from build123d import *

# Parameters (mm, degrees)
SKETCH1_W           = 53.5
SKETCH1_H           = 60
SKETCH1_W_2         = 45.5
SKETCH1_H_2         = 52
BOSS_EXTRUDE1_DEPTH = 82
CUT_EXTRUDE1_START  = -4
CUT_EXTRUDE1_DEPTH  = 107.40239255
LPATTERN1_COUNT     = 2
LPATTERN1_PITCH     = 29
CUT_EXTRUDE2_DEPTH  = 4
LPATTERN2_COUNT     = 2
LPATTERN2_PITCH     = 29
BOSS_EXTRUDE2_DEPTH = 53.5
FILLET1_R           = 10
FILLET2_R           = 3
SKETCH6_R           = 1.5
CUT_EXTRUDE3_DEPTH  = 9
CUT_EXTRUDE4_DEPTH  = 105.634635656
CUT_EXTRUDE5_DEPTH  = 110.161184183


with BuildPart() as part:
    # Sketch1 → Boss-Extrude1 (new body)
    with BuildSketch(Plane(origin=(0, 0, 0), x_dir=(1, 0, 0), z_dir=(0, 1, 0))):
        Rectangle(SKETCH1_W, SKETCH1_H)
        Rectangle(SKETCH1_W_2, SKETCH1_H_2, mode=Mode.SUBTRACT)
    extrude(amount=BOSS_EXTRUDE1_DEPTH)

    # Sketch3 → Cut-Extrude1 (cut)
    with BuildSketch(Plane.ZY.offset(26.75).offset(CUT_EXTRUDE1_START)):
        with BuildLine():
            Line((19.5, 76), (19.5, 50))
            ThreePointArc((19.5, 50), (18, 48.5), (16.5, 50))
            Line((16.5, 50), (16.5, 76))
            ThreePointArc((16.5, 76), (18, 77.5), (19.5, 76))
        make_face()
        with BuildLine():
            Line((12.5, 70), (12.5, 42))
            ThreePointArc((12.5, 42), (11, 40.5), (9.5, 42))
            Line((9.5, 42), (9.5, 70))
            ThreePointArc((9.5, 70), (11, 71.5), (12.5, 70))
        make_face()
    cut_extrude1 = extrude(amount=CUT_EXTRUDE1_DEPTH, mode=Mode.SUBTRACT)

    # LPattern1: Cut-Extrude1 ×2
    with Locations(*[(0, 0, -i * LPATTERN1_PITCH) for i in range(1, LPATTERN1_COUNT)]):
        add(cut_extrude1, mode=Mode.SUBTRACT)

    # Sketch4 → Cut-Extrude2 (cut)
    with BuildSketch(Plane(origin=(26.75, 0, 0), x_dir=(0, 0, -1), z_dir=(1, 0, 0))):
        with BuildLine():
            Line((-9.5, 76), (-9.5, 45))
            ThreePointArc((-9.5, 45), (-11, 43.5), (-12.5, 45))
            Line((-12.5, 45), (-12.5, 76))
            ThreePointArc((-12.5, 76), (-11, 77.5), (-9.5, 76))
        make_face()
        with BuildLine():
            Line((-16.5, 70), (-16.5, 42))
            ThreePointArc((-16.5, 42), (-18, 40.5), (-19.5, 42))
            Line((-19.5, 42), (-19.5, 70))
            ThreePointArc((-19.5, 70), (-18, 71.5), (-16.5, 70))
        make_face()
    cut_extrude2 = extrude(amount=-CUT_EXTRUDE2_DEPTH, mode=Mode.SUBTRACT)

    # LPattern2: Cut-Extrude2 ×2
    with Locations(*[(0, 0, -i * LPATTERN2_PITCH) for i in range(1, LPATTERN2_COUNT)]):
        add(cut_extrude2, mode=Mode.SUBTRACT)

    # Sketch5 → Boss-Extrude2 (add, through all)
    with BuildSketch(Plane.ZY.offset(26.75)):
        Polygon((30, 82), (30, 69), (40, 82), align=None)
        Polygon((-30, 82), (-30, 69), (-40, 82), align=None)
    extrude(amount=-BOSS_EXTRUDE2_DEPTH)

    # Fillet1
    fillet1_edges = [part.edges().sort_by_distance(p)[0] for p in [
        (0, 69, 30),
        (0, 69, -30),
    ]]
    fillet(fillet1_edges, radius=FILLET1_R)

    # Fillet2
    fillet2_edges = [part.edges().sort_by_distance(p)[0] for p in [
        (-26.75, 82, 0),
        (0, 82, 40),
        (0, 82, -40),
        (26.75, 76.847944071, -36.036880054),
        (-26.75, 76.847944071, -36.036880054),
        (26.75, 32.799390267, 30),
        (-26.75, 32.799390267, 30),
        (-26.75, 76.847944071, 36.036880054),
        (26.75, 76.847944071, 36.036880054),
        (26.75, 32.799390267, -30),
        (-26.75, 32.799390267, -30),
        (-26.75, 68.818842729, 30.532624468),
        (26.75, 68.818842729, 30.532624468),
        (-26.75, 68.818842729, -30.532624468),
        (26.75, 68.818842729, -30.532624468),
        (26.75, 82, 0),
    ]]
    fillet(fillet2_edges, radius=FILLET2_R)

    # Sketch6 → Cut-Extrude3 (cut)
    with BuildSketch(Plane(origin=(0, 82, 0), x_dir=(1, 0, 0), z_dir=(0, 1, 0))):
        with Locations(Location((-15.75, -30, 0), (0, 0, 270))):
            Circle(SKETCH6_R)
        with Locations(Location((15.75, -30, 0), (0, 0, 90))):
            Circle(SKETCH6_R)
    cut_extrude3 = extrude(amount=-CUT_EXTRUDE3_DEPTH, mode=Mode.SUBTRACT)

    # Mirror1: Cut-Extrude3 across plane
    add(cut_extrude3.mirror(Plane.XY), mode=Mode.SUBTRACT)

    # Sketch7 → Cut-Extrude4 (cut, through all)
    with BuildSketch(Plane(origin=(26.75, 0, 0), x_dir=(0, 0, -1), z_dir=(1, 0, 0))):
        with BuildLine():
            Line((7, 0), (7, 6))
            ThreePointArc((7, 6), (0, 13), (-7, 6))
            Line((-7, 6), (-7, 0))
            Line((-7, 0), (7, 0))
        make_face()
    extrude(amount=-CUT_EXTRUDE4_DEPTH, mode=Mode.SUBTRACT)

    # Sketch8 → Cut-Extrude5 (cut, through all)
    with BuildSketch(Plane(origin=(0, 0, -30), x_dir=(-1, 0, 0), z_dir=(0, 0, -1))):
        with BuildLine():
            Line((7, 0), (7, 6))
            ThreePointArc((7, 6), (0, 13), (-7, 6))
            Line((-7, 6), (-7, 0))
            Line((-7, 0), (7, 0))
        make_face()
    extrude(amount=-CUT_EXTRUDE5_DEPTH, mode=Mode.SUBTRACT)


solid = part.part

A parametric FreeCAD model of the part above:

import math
import FreeCAD as App
import Part
import Sketcher

V = App.Vector


def edges_at(feature, points):
    """Names of the edges that pass closest to the given points."""
    edges = feature.Shape.Edges
    near = lambda p: min(range(len(edges)), key=lambda i: edges[i].distToShape(Part.Vertex(*p))[0])
    return sorted({f"Edge{near(p) + 1}" for p in points})

doc = App.newDocument("Part")
body = doc.addObject("PartDesign::Body", "Body")

# Sketch on XZ plane
sketch1 = body.newObject("Sketcher::SketchObject", "Sketch")
sketch1.AttachmentSupport = (doc.getObject("XZ_Plane"), [""])
sketch1.MapMode = "FlatFace"
sketch1.addGeometry(Part.LineSegment(V(-27, -30, 0), V(-27, 30, 0)), False)
sketch1.addGeometry(Part.LineSegment(V(-27, 30, 0), V(27, 30, 0)), False)
sketch1.addGeometry(Part.LineSegment(V(27, 30, 0), V(27, -30, 0)), False)
sketch1.addGeometry(Part.LineSegment(V(27, -30, 0), V(-27, -30, 0)), False)
sketch1.addGeometry(Part.LineSegment(V(23, 26, 0), V(-23, 26, 0)), False)
sketch1.addGeometry(Part.LineSegment(V(-23, 26, 0), V(-23, -26, 0)), False)
sketch1.addGeometry(Part.LineSegment(V(-23, -26, 0), V(23, -26, 0)), False)
sketch1.addGeometry(Part.LineSegment(V(23, -26, 0), V(23, 26, 0)), False)
sketch1.addConstraint(Sketcher.Constraint("Coincident", 0, 2, 1, 1))
sketch1.addConstraint(Sketcher.Constraint("Coincident", 1, 2, 2, 1))
sketch1.addConstraint(Sketcher.Constraint("Coincident", 2, 2, 3, 1))
sketch1.addConstraint(Sketcher.Constraint("Coincident", 3, 2, 0, 1))
sketch1.addConstraint(Sketcher.Constraint("Coincident", 4, 2, 5, 1))
sketch1.addConstraint(Sketcher.Constraint("Coincident", 5, 2, 6, 1))
sketch1.addConstraint(Sketcher.Constraint("Coincident", 6, 2, 7, 1))
sketch1.addConstraint(Sketcher.Constraint("Coincident", 7, 2, 4, 1))
sketch1.addConstraint(Sketcher.Constraint("Vertical", 0))
sketch1.addConstraint(Sketcher.Constraint("Horizontal", 1))
sketch1.addConstraint(Sketcher.Constraint("Vertical", 2))
sketch1.addConstraint(Sketcher.Constraint("Horizontal", 3))
sketch1.addConstraint(Sketcher.Constraint("Horizontal", 4))
sketch1.addConstraint(Sketcher.Constraint("Vertical", 5))
sketch1.addConstraint(Sketcher.Constraint("Horizontal", 6))
sketch1.addConstraint(Sketcher.Constraint("Vertical", 7))
sketch1.addConstraint(Sketcher.Constraint("Symmetric", 0, 2, 2, 2, -1, 1))
sketch1.addConstraint(Sketcher.Constraint("Symmetric", 4, 2, 6, 2, -1, 1))
sketch1.addConstraint(Sketcher.Constraint("DistanceY", 0, 1, 0, 2, 60.0))
sketch1.addConstraint(Sketcher.Constraint("DistanceY", 5, 2, 5, 1, 52.0))
sketch1.addConstraint(Sketcher.Constraint("DistanceX", 1, 1, 1, 2, 53.5))
sketch1.addConstraint(Sketcher.Constraint("DistanceX", 4, 2, 4, 1, 45.5))
pad1 = body.newObject("PartDesign::Pad", "Pad")
pad1.Profile = sketch1
pad1.Length = 82
pad1.Reversed = True

# Sketch on YZ plane
sketch2 = body.newObject("Sketcher::SketchObject", "Sketch001")
sketch2.AttachmentSupport = (doc.getObject("YZ_Plane"), [""])
sketch2.MapMode = "FlatFace"
sketch2.AttachmentOffset = App.Placement(V(0, 0, -22.75), App.Rotation())
sketch2.addGeometry(Part.LineSegment(V(50, 19.5, 0), V(76, 19.5, 0)), False)
sketch2.addGeometry(Part.ArcOfCircle(Part.Circle(V(76, 18, 0), V(0, 0, 1), 1.5), math.radians(-90), math.radians(90)), False)
sketch2.addGeometry(Part.LineSegment(V(76, 16.5, 0), V(50, 16.5, 0)), False)
sketch2.addGeometry(Part.ArcOfCircle(Part.Circle(V(50, 18, 0), V(0, 0, 1), 1.5), math.radians(90), math.radians(270)), False)
sketch2.addGeometry(Part.LineSegment(V(42, 12.5, 0), V(70, 12.5, 0)), False)
sketch2.addGeometry(Part.ArcOfCircle(Part.Circle(V(70, 11, 0), V(0, 0, 1), 1.5), math.radians(-90), math.radians(90)), False)
sketch2.addGeometry(Part.LineSegment(V(70, 9.5, 0), V(42, 9.5, 0)), False)
sketch2.addGeometry(Part.ArcOfCircle(Part.Circle(V(42, 11, 0), V(0, 0, 1), 1.5), math.radians(90), math.radians(270)), False)
sketch2.addConstraint(Sketcher.Constraint("Tangent", 0, 2, 1, 2))
sketch2.addConstraint(Sketcher.Constraint("Tangent", 1, 1, 2, 1))
sketch2.addConstraint(Sketcher.Constraint("Tangent", 2, 2, 3, 2))
sketch2.addConstraint(Sketcher.Constraint("Tangent", 3, 1, 0, 1))
sketch2.addConstraint(Sketcher.Constraint("Tangent", 4, 2, 5, 2))
sketch2.addConstraint(Sketcher.Constraint("Tangent", 5, 1, 6, 1))
sketch2.addConstraint(Sketcher.Constraint("Tangent", 6, 2, 7, 2))
sketch2.addConstraint(Sketcher.Constraint("Tangent", 7, 1, 4, 1))
sketch2.addConstraint(Sketcher.Constraint("Horizontal", 0))
sketch2.addConstraint(Sketcher.Constraint("Horizontal", 2))
sketch2.addConstraint(Sketcher.Constraint("Horizontal", 4))
sketch2.addConstraint(Sketcher.Constraint("Horizontal", 6))
sketch2.addConstraint(Sketcher.Constraint("Equal", 3, 5))
sketch2.addConstraint(Sketcher.Constraint("Radius", 1, 1.5))
sketch2.addConstraint(Sketcher.Constraint("DistanceX", 0, 1, 0, 2, 26.0))
sketch2.addConstraint(Sketcher.Constraint("DistanceX", 4, 1, 4, 2, 28.0))
sketch2.addConstraint(Sketcher.Constraint("DistanceX", -1, 1, 1, 3, 76.0))
sketch2.addConstraint(Sketcher.Constraint("DistanceY", -1, 1, 1, 3, 18.0))
sketch2.addConstraint(Sketcher.Constraint("DistanceX", -1, 1, 5, 3, 70.0))
sketch2.addConstraint(Sketcher.Constraint("DistanceY", -1, 1, 5, 3, 11.0))
pocket1 = body.newObject("PartDesign::Pocket", "Pocket")
pocket1.Profile = sketch2
pocket1.Length = 107.402393
doc.recompute()

linearpattern = body.newObject("PartDesign::LinearPattern", "LinearPattern")
linearpattern.Originals = [pocket1]
linearpattern.Direction = (doc.getObject("Z_Axis"), [""])
linearpattern.Mode = "offset"
linearpattern.Offset = 29
linearpattern.Occurrences = 2
linearpattern.Reversed = True
body.Tip = linearpattern

# Sketch on YZ plane
sketch3 = body.newObject("Sketcher::SketchObject", "Sketch002")
sketch3.AttachmentSupport = (doc.getObject("YZ_Plane"), [""])
sketch3.MapMode = "FlatFace"
sketch3.AttachmentOffset = App.Placement(V(0, 0, 26.75), App.Rotation())
sketch3.addGeometry(Part.LineSegment(V(45, 9.5, 0), V(76, 9.5, 0)), False)
sketch3.addGeometry(Part.ArcOfCircle(Part.Circle(V(76, 11, 0), V(0, 0, 1), 1.5), math.radians(-90), math.radians(90)), False)
sketch3.addGeometry(Part.LineSegment(V(76, 12.5, 0), V(45, 12.5, 0)), False)
sketch3.addGeometry(Part.ArcOfCircle(Part.Circle(V(45, 11, 0), V(0, 0, 1), 1.5), math.radians(90), math.radians(270)), False)
sketch3.addGeometry(Part.LineSegment(V(42, 16.5, 0), V(70, 16.5, 0)), False)
sketch3.addGeometry(Part.ArcOfCircle(Part.Circle(V(70, 18, 0), V(0, 0, 1), 1.5), math.radians(-90), math.radians(90)), False)
sketch3.addGeometry(Part.LineSegment(V(70, 19.5, 0), V(42, 19.5, 0)), False)
sketch3.addGeometry(Part.ArcOfCircle(Part.Circle(V(42, 18, 0), V(0, 0, 1), 1.5), math.radians(90), math.radians(270)), False)
sketch3.addConstraint(Sketcher.Constraint("Tangent", 0, 2, 1, 1))
sketch3.addConstraint(Sketcher.Constraint("Tangent", 1, 2, 2, 1))
sketch3.addConstraint(Sketcher.Constraint("Tangent", 2, 2, 3, 1))
sketch3.addConstraint(Sketcher.Constraint("Tangent", 3, 2, 0, 1))
sketch3.addConstraint(Sketcher.Constraint("Tangent", 4, 2, 5, 1))
sketch3.addConstraint(Sketcher.Constraint("Tangent", 5, 2, 6, 1))
sketch3.addConstraint(Sketcher.Constraint("Tangent", 6, 2, 7, 1))
sketch3.addConstraint(Sketcher.Constraint("Tangent", 7, 2, 4, 1))
sketch3.addConstraint(Sketcher.Constraint("Horizontal", 0))
sketch3.addConstraint(Sketcher.Constraint("Horizontal", 2))
sketch3.addConstraint(Sketcher.Constraint("Horizontal", 4))
sketch3.addConstraint(Sketcher.Constraint("Horizontal", 6))
sketch3.addConstraint(Sketcher.Constraint("Equal", 3, 5))
sketch3.addConstraint(Sketcher.Constraint("Radius", 1, 1.5))
sketch3.addConstraint(Sketcher.Constraint("DistanceX", 0, 1, 0, 2, 31.0))
sketch3.addConstraint(Sketcher.Constraint("DistanceX", 4, 1, 4, 2, 28.0))
sketch3.addConstraint(Sketcher.Constraint("DistanceX", -1, 1, 1, 3, 76.0))
sketch3.addConstraint(Sketcher.Constraint("DistanceY", -1, 1, 1, 3, 11.0))
sketch3.addConstraint(Sketcher.Constraint("DistanceX", -1, 1, 5, 3, 70.0))
sketch3.addConstraint(Sketcher.Constraint("DistanceY", -1, 1, 5, 3, 18.0))
pocket2 = body.newObject("PartDesign::Pocket", "Pocket001")
pocket2.Profile = sketch3
pocket2.Length = 4
doc.recompute()

linearpattern2 = body.newObject("PartDesign::LinearPattern", "LinearPattern001")
linearpattern2.Originals = [pocket2]
linearpattern2.Direction = (doc.getObject("Z_Axis"), [""])
linearpattern2.Mode = "offset"
linearpattern2.Offset = 29
linearpattern2.Occurrences = 2
linearpattern2.Reversed = True
body.Tip = linearpattern2

# Sketch on YZ plane
sketch4 = body.newObject("Sketcher::SketchObject", "Sketch003")
sketch4.AttachmentSupport = (doc.getObject("YZ_Plane"), [""])
sketch4.MapMode = "FlatFace"
sketch4.AttachmentOffset = App.Placement(V(0, 0, -26.75), App.Rotation())
sketch4.addGeometry(Part.LineSegment(V(82, 30, 0), V(69, 30, 0)), False)
sketch4.addGeometry(Part.LineSegment(V(69, 30, 0), V(82, 40, 0)), False)
sketch4.addGeometry(Part.LineSegment(V(82, 40, 0), V(82, 30, 0)), False)
sketch4.addGeometry(Part.LineSegment(V(69, -30, 0), V(82, -30, 0)), False)
sketch4.addGeometry(Part.LineSegment(V(82, -30, 0), V(82, -40, 0)), False)
sketch4.addGeometry(Part.LineSegment(V(82, -40, 0), V(69, -30, 0)), False)
sketch4.addConstraint(Sketcher.Constraint("Coincident", 0, 2, 1, 1))
sketch4.addConstraint(Sketcher.Constraint("Coincident", 1, 2, 2, 1))
sketch4.addConstraint(Sketcher.Constraint("Coincident", 2, 2, 0, 1))
sketch4.addConstraint(Sketcher.Constraint("Coincident", 3, 2, 4, 1))
sketch4.addConstraint(Sketcher.Constraint("Coincident", 4, 2, 5, 1))
sketch4.addConstraint(Sketcher.Constraint("Coincident", 5, 2, 3, 1))
sketch4.addConstraint(Sketcher.Constraint("Horizontal", 0))
sketch4.addConstraint(Sketcher.Constraint("Vertical", 2))
sketch4.addConstraint(Sketcher.Constraint("Horizontal", 3))
sketch4.addConstraint(Sketcher.Constraint("Vertical", 4))
sketch4.addConstraint(Sketcher.Constraint("Symmetric", 2, 2, 3, 2, -1))
sketch4.addConstraint(Sketcher.Constraint("Vertical", 0, 2, 5, 2))
sketch4.addConstraint(Sketcher.Constraint("Equal", 2, 4))
sketch4.addConstraint(Sketcher.Constraint("DistanceX", 0, 2, 0, 1, 13.0))
sketch4.addConstraint(Sketcher.Constraint("DistanceY", 2, 2, 2, 1, 10.0))
sketch4.addConstraint(Sketcher.Constraint("DistanceX", -1, 1, 0, 2, 69.0))
sketch4.addConstraint(Sketcher.Constraint("DistanceY", -1, 1, 0, 2, 30.0))
pad2 = body.newObject("PartDesign::Pad", "Pad001")
pad2.Profile = sketch4
pad2.Type = "UpToLast"
doc.recompute()

fillet = body.newObject("PartDesign::Fillet", "Fillet")
fillet.Base = (pad2, edges_at(pad2, [(0, 69, 30), (0, 69, -30)]))
fillet.Radius = 10
doc.recompute()

fillet2 = body.newObject("PartDesign::Fillet", "Fillet001")
fillet2.Base = (fillet, edges_at(fillet, [
    (-26.75, 82, 0),
    (0, 82, 40),
    (0, 82, -40),
    (26.75, 76.848, -36.037),
    (-26.75, 76.848, -36.037),
    (26.75, 32.799, 30),
    (-26.75, 32.799, 30),
    (-26.75, 76.848, 36.037),
    (26.75, 76.848, 36.037),
    (26.75, 32.799, -30),
    (-26.75, 32.799, -30),
    (-26.75, 68.819, 30.533),
    (26.75, 68.819, 30.533),
    (-26.75, 68.819, -30.533),
    (26.75, 68.819, -30.533),
    (26.75, 82, 0),
]))
fillet2.Radius = 3

# Sketch on XZ plane
sketch5 = body.newObject("Sketcher::SketchObject", "Sketch004")
sketch5.AttachmentSupport = (doc.getObject("XZ_Plane"), [""])
sketch5.MapMode = "FlatFace"
sketch5.AttachmentOffset = App.Placement(V(0, 0, -82), App.Rotation())
sketch5.addGeometry(Part.Circle(V(-15.8, 30, 0), V(0, 0, 1), 1.5), False)
sketch5.addGeometry(Part.Circle(V(15.8, 30, 0), V(0, 0, 1), 1.5), False)
sketch5.addConstraint(Sketcher.Constraint("Equal", 0, 1))
sketch5.addConstraint(Sketcher.Constraint("Symmetric", 0, 3, 1, 3, -2))
sketch5.addConstraint(Sketcher.Constraint("Diameter", 0, 3.0))
sketch5.addConstraint(Sketcher.Constraint("DistanceY", -1, 1, 0, 3, 30.0))
sketch5.addConstraint(Sketcher.Constraint("DistanceX", 0, 3, 1, 3, 31.5))
pocket3 = body.newObject("PartDesign::Pocket", "Pocket002")
pocket3.Profile = sketch5
pocket3.Length = 9
pocket3.Reversed = True
doc.recompute()

mirrored = body.newObject("PartDesign::Mirrored", "Mirrored")
mirrored.Originals = [pocket3]
mirrored.MirrorPlane = (doc.getObject("XY_Plane"), [""])
body.Tip = mirrored

# Sketch on YZ plane
sketch6 = body.newObject("Sketcher::SketchObject", "Sketch005")
sketch6.AttachmentSupport = (doc.getObject("YZ_Plane"), [""])
sketch6.MapMode = "FlatFace"
sketch6.AttachmentOffset = App.Placement(V(0, 0, 26.75), App.Rotation())
sketch6.addGeometry(Part.LineSegment(V(0, -7, 0), V(6, -7, 0)), False)
sketch6.addGeometry(Part.ArcOfCircle(Part.Circle(V(6, 0, 0), V(0, 0, 1), 7), math.radians(-90), math.radians(90)), False)
sketch6.addGeometry(Part.LineSegment(V(6, 7, 0), V(0, 7, 0)), False)
sketch6.addGeometry(Part.LineSegment(V(0, 7, 0), V(0, -7, 0)), False)
sketch6.addConstraint(Sketcher.Constraint("Tangent", 0, 2, 1, 1))
sketch6.addConstraint(Sketcher.Constraint("Tangent", 1, 2, 2, 1))
sketch6.addConstraint(Sketcher.Constraint("Coincident", 2, 2, 3, 1))
sketch6.addConstraint(Sketcher.Constraint("Coincident", 3, 2, 0, 1))
sketch6.addConstraint(Sketcher.Constraint("Horizontal", 0))
sketch6.addConstraint(Sketcher.Constraint("Horizontal", 2))
sketch6.addConstraint(Sketcher.Constraint("Vertical", 3))
sketch6.addConstraint(Sketcher.Constraint("Symmetric", 2, 2, 3, 2, -1, 1))
sketch6.addConstraint(Sketcher.Constraint("Radius", 1, 7.0))
sketch6.addConstraint(Sketcher.Constraint("DistanceX", 0, 1, 0, 2, 6.0))
pocket4 = body.newObject("PartDesign::Pocket", "Pocket003")
pocket4.Profile = sketch6
pocket4.Type = "ThroughAll"

# Sketch on XY plane
sketch7 = body.newObject("Sketcher::SketchObject", "Sketch006")
sketch7.AttachmentSupport = (doc.getObject("XY_Plane"), [""])
sketch7.MapMode = "FlatFace"
sketch7.AttachmentOffset = App.Placement(V(0, 0, -30), App.Rotation())
sketch7.addGeometry(Part.LineSegment(V(-7, 0, 0), V(-7, 6, 0)), False)
sketch7.addGeometry(Part.ArcOfCircle(Part.Circle(V(0, 6, 0), V(0, 0, 1), 7), math.radians(0), math.radians(180)), False)
sketch7.addGeometry(Part.LineSegment(V(7, 6, 0), V(7, 0, 0)), False)
sketch7.addGeometry(Part.LineSegment(V(7, 0, 0), V(-7, 0, 0)), False)
sketch7.addConstraint(Sketcher.Constraint("Tangent", 0, 2, 1, 2))
sketch7.addConstraint(Sketcher.Constraint("Tangent", 1, 1, 2, 1))
sketch7.addConstraint(Sketcher.Constraint("Coincident", 2, 2, 3, 1))
sketch7.addConstraint(Sketcher.Constraint("Coincident", 3, 2, 0, 1))
sketch7.addConstraint(Sketcher.Constraint("Vertical", 0))
sketch7.addConstraint(Sketcher.Constraint("Vertical", 2))
sketch7.addConstraint(Sketcher.Constraint("Horizontal", 3))
sketch7.addConstraint(Sketcher.Constraint("Symmetric", 2, 2, 3, 2, -1, 1))
sketch7.addConstraint(Sketcher.Constraint("Radius", 1, 7.0))
sketch7.addConstraint(Sketcher.Constraint("DistanceY", 0, 1, 0, 2, 6.0))
pocket5 = body.newObject("PartDesign::Pocket", "Pocket004")
pocket5.Profile = sketch7
pocket5.Type = "ThroughAll"
pocket5.Reversed = True

doc.recompute()
